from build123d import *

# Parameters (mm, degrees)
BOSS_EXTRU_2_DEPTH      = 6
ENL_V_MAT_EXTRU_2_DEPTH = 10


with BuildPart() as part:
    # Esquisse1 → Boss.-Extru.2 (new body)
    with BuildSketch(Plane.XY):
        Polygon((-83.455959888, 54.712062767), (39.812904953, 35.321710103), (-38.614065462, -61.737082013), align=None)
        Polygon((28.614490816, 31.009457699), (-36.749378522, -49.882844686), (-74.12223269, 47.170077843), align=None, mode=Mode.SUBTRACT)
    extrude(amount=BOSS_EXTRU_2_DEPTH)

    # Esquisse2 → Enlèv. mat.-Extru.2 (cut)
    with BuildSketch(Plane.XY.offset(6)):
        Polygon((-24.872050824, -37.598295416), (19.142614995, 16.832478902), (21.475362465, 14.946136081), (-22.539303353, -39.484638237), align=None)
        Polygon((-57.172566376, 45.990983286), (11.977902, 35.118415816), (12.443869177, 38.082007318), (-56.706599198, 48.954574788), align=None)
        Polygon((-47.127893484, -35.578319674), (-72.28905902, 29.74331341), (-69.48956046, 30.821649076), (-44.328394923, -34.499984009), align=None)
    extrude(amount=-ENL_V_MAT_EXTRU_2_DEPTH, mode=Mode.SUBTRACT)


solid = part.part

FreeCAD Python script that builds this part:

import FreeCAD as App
import Part
import Sketcher

V = App.Vector
Q = App.Units.Quantity

doc = App.newDocument("Part")
body = doc.addObject("PartDesign::Body", "Body")

# Sketch on XY plane
sketch1 = body.newObject("Sketcher::SketchObject", "Sketch")
sketch1.AttachmentSupport = (doc.getObject("XY_Plane"), [""])
sketch1.MapMode = "FlatFace"
sketch1.addGeometry([
    Part.LineSegment(V(40, 35, 0), V(-83, 55, 0)),  # 0
    Part.LineSegment(V(-83, 55, 0), V(-39, -62, 0)),  # 1
    Part.LineSegment(V(-39, -62, 0), V(40, 35, 0)),  # 2
    Part.LineSegment(V(29, 31, 0), V(-37, -50, 0)),  # 3
    Part.LineSegment(V(-37, -50, 0), V(-74, 47, 0)),  # 4
    Part.LineSegment(V(-74, 47, 0), V(29, 31, 0)),  # 5
], False)
sketch1.addConstraint([
    Sketcher.Constraint("Coincident", 0, 2, 1, 1),
    Sketcher.Constraint("Coincident", 1, 2, 2, 1),
    Sketcher.Constraint("Coincident", 2, 2, 0, 1),
    Sketcher.Constraint("Coincident", 3, 2, 4, 1),
    Sketcher.Constraint("Coincident", 4, 2, 5, 1),
    Sketcher.Constraint("Coincident", 5, 2, 3, 1),
    Sketcher.Constraint("Parallel", 2, 3),
    Sketcher.Constraint("Parallel", 1, 4),
    Sketcher.Constraint("Parallel", 0, 5),
    Sketcher.Constraint("Equal", 0, 1),
    Sketcher.Constraint("Equal", 1, 2),
    Sketcher.Constraint("Distance", 3, Q("104 mm")),
    Sketcher.Constraint("Distance", 0, Q("124.78461 mm")),
    Sketcher.Constraint("DistanceX", 0, 2, -1, 1, Q("83.45596 mm")),
    Sketcher.Constraint("DistanceY", -1, 1, 2, 2, Q("35.32171 mm")),
    Sketcher.Constraint("DistanceX", 3, 2, -1, 1, Q("36.749379 mm")),
    Sketcher.Constraint("DistanceX", -1, 1, 5, 2, Q("28.614491 mm")),
    Sketcher.Constraint("DistanceY", 1, 2, 4, 2, Q("108.90716 mm")),
])
pad1 = body.newObject("PartDesign::Pad", "Pad")
pad1.Profile = sketch1
pad1.Length = 6

# Sketch on XY plane
sketch2 = body.newObject("Sketcher::SketchObject", "Sketch001")
sketch2.AttachmentSupport = (doc.getObject("XY_Plane"), [""])
sketch2.MapMode = "FlatFace"
sketch2.AttachmentOffset = App.Placement(V(0, 0, 6), App.Rotation())
sketch2.addGeometry([
    Part.LineSegment(V(19.142615, 16.832479, 0), V(-24.872051, -37.598295, 0)),  # 0
    Part.LineSegment(V(-24.872051, -37.598295, 0), V(-22.539303, -39.484638, 0)),  # 1
    Part.LineSegment(V(-22.539303, -39.484638, 0), V(21.475362, 14.946136, 0)),  # 2
    Part.LineSegment(V(21.475362, 14.946136, 0), V(19.142615, 16.832479, 0)),  # 3
    Part.LineSegment(V(-57.172566, 45.990983, 0), V(11.977902, 35.118416, 0)),  # 4
    Part.LineSegment(V(11.977902, 35.118416, 0), V(12.443869, 38.082007, 0)),  # 5
    Part.LineSegment(V(12.443869, 38.082007, 0), V(-56.706599, 48.954575, 0)),  # 6
    Part.LineSegment(V(-56.706599, 48.954575, 0), V(-57.172566, 45.990983, 0)),  # 7
    Part.LineSegment(V(-72.289059, 29.743313, 0), V(-47.127893, -35.57832, 0)),  # 8
    Part.LineSegment(V(-47.127893, -35.57832, 0), V(-44.328395, -34.499984, 0)),  # 9
    Part.LineSegment(V(-44.328395, -34.499984, 0), V(-69.48956, 30.821649, 0)),  # 10
    Part.LineSegment(V(-69.48956, 30.821649, 0), V(-72.289059, 29.743313, 0)),  # 11
], False)
sketch2.addConstraint([
    Sketcher.Constraint("Coincident", 0, 2, 1, 1),
    Sketcher.Constraint("Coincident", 1, 2, 2, 1),
    Sketcher.Constraint("Coincident", 2, 2, 3, 1),
    Sketcher.Constraint("Coincident", 3, 2, 0, 1),
    Sketcher.Constraint("Coincident", 4, 2, 5, 1),
    Sketcher.Constraint("Coincident", 5, 2, 6, 1),
    Sketcher.Constraint("Coincident", 6, 2, 7, 1),
    Sketcher.Constraint("Coincident", 7, 2, 4, 1),
    Sketcher.Constraint("Coincident", 8, 2, 9, 1),
    Sketcher.Constraint("Coincident", 9, 2, 10, 1),
    Sketcher.Constraint("Coincident", 10, 2, 11, 1),
    Sketcher.Constraint("Coincident", 11, 2, 8, 1),
    Sketcher.Constraint("Distance", 0, Q("70 mm")),
    Sketcher.Constraint("Distance", 1, Q("3 mm")),
    Sketcher.Constraint("Distance", 2, Q("70 mm")),
    Sketcher.Constraint("Distance", 3, Q("3 mm")),
    Sketcher.Constraint("Distance", 4, Q("70 mm")),
    Sketcher.Constraint("Distance", 5, Q("3 mm")),
    Sketcher.Constraint("Distance", 6, Q("70 mm")),
    Sketcher.Constraint("Distance", 7, Q("3 mm")),
    Sketcher.Constraint("Distance", 8, Q("70 mm")),
    Sketcher.Constraint("Distance", 9, Q("3 mm")),
    Sketcher.Constraint("Distance", 10, Q("70 mm")),
    Sketcher.Constraint("Distance", 11, Q("3 mm")),
    Sketcher.Constraint("DistanceX", 6, 2, -1, 1, Q("56.706599 mm")),
    Sketcher.Constraint("DistanceX", 6, 2, 4, 2, Q("68.684501 mm")),
    Sketcher.Constraint("DistanceY", 8, 2, 3, 2, Q("52.410799 mm")),
    Sketcher.Constraint("DistanceX", 8, 2, 9, 2, Q("2.799499 mm")),
    Sketcher.Constraint("DistanceX", 0, 2, -1, 1, Q("24.872051 mm")),
    Sketcher.Constraint("DistanceY", 1, 2, -1, 1, Q("39.484638 mm")),
    Sketcher.Constraint("DistanceY", -1, 1, 3, 2, Q("16.832479 mm")),
    Sketcher.Constraint("DistanceX", -1, 1, 5, 2, Q("12.443869 mm")),
    Sketcher.Constraint("DistanceX", 10, 2, -1, 1, Q("69.48956 mm")),
    Sketcher.Constraint("DistanceY", -1, 1, 10, 2, Q("30.821649 mm")),
    Sketcher.Constraint("DistanceY", 0, 2, 2, 2, Q("52.544431 mm")),
    Sketcher.Constraint("DistanceY", 2, 2, 4, 2, Q("20.17228 mm")),
])
pocket1 = body.newObject("PartDesign::Pocket", "Pocket")
pocket1.Profile = sketch2
pocket1.Length = 10

doc.recompute()
